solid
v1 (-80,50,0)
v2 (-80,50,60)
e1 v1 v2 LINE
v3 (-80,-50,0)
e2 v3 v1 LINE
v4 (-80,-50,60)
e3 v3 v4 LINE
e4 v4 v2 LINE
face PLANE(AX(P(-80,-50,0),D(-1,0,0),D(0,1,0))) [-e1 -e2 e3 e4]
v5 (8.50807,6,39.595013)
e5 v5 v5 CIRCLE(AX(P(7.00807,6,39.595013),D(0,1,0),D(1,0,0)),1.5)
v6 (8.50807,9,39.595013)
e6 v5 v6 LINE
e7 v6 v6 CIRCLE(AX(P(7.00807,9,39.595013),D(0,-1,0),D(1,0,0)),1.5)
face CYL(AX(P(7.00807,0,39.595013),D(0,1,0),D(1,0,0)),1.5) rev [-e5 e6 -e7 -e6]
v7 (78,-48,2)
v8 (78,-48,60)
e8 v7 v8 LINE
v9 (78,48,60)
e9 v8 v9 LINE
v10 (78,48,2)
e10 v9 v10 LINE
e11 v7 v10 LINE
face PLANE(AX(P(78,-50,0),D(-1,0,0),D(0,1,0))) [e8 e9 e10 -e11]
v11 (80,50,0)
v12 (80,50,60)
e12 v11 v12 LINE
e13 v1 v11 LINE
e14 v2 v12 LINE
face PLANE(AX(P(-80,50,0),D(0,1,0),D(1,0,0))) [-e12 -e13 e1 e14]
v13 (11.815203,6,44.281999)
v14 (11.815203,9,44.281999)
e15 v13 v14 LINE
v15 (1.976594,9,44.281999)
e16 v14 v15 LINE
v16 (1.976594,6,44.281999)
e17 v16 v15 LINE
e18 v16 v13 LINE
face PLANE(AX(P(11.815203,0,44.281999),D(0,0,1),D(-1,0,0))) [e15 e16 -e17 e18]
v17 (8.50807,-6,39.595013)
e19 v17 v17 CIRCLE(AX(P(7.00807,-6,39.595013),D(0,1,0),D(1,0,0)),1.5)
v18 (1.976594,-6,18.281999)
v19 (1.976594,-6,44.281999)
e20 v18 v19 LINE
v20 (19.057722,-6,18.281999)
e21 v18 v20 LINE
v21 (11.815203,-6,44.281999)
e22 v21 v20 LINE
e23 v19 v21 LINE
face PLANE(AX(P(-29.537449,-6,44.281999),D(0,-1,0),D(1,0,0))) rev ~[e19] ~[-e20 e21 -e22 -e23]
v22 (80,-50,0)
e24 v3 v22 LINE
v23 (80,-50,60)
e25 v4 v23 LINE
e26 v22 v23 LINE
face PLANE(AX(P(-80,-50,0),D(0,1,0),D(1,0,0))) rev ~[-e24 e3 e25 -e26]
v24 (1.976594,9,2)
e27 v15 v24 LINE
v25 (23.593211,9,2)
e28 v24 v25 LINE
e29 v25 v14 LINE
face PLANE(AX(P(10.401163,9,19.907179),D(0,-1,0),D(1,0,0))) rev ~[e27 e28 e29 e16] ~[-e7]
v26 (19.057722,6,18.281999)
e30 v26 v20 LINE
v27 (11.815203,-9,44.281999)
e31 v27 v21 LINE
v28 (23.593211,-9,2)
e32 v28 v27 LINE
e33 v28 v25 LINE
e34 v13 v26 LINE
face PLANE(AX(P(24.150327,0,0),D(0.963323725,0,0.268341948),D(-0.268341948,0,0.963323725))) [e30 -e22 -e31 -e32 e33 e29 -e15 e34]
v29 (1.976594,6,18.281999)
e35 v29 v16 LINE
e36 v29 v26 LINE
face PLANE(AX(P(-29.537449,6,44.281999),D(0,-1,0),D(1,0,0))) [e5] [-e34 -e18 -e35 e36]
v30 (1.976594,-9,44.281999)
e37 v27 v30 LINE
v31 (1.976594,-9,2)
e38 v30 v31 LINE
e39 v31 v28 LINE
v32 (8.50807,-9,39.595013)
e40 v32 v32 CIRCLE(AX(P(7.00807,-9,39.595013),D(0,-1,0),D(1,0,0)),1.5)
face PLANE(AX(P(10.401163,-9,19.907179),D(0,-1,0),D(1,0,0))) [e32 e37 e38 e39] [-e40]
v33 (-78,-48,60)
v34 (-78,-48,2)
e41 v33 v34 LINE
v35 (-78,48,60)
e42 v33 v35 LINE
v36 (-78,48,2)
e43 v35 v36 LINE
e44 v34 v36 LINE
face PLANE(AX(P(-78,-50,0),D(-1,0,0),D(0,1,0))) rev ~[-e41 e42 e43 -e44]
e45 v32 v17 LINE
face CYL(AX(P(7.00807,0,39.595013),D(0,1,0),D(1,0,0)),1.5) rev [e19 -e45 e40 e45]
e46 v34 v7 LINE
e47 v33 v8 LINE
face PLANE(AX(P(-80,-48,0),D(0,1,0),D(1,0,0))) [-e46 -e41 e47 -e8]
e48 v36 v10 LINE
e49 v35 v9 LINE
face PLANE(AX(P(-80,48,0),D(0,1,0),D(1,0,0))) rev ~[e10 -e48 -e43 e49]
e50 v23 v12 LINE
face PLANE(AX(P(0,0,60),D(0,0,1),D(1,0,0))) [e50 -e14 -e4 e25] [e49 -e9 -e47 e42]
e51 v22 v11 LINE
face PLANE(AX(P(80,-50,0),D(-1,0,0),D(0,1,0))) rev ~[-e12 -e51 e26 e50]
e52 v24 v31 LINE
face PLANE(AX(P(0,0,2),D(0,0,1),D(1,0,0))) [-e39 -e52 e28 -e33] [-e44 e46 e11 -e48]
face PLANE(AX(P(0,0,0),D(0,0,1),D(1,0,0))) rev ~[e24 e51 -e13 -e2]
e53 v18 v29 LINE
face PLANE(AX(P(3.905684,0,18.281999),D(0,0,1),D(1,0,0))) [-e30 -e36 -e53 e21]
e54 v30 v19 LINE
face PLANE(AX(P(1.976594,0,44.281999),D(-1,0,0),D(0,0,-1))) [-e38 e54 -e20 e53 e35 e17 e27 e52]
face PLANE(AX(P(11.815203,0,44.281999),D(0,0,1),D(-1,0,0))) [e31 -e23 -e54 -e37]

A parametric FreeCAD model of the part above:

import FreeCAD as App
import Part
import Sketcher
Q = App.Units.Quantity


def faces_at(feature, points):
    """Names of the faces that lie closest to the given points."""
    faces = feature.Shape.Faces
    near = lambda p: min(range(len(faces)), key=lambda i: faces[i].distToShape(Part.Vertex(*p))[0])
    return sorted({f"Face{near(p) + 1}" for p in points})

doc = App.newDocument("Part")
body = doc.addObject("PartDesign::Body", "Body")

# Sketch on XY plane
sketch1 = body.newObject("Sketcher::SketchObject", "Sketch")
sketch1.AttachmentSupport = (doc.getObject("XY_Plane"), [""])
sketch1.MapMode = "FlatFace"
sketch1.addGeometry(Part.LineSegment(App.Vector(-80, 50, 0), App.Vector(-80, -50, 0)), False)
sketch1.addGeometry(Part.LineSegment(App.Vector(-80, -50, 0), App.Vector(80, -50, 0)), False)
sketch1.addGeometry(Part.LineSegment(App.Vector(80, -50, 0), App.Vector(80, 50, 0)), False)
sketch1.addGeometry(Part.LineSegment(App.Vector(80, 50, 0), App.Vector(-80, 50, 0)), False)
sketch1.addConstraint(Sketcher.Constraint("Coincident", 0, 2, 1, 1))
sketch1.addConstraint(Sketcher.Constraint("Coincident", 1, 2, 2, 1))
sketch1.addConstraint(Sketcher.Constraint("Coincident", 2, 2, 3, 1))
sketch1.addConstraint(Sketcher.Constraint("Coincident", 3, 2, 0, 1))
sketch1.addConstraint(Sketcher.Constraint("Vertical", 0))
sketch1.addConstraint(Sketcher.Constraint("Horizontal", 1))
sketch1.addConstraint(Sketcher.Constraint("Vertical", 2))
sketch1.addConstraint(Sketcher.Constraint("Horizontal", 3))
sketch1.addConstraint(Sketcher.Constraint("Symmetric", 0, 2, 2, 2, -1, 1))
sketch1.addConstraint(Sketcher.Constraint("DistanceX", 1, 1, 1, 2, Q("160 mm")))
sketch1.addConstraint(Sketcher.Constraint("DistanceY", 0, 2, 0, 1, Q("100 mm")))
pad1 = body.newObject("PartDesign::Pad", "Pad")
pad1.Profile = sketch1
pad1.Length = 60
doc.recompute()

thickness = body.newObject("PartDesign::Thickness", "Thickness")
thickness.Base = (pad1, faces_at(pad1, [(0, 0, 60)]))
thickness.Value = 2
thickness.Reversed = True
thickness.Join = "Arc"

# Sketch on XZ plane
sketch2 = body.newObject("Sketcher::SketchObject", "Sketch001")
sketch2.AttachmentSupport = (doc.getObject("XZ_Plane"), [""])
sketch2.MapMode = "FlatFace"
sketch2.addGeometry(Part.LineSegment(App.Vector(1.976594, 44.281999, 0), App.Vector(1.976594, 0, 0)), False)
sketch2.addGeometry(Part.LineSegment(App.Vector(1.976594, 0, 0), App.Vector(24.150327, 0, 0)), False)
sketch2.addGeometry(Part.LineSegment(App.Vector(24.150327, 0, 0), App.Vector(11.815203, 44.281999, 0)), False)
sketch2.addGeometry(Part.LineSegment(App.Vector(11.815203, 44.281999, 0), App.Vector(1.976594, 44.281999, 0)), False)
sketch2.addGeometry(Part.Circle(App.Vector(7.00807, 39.595013, 0), App.Vector(0, 0, 1), 1.5), False)
sketch2.addConstraint(Sketcher.Constraint("Coincident", 0, 2, 1, 1))
sketch2.addConstraint(Sketcher.Constraint("Coincident", 1, 2, 2, 1))
sketch2.addConstraint(Sketcher.Constraint("Coincident", 2, 2, 3, 1))
sketch2.addConstraint(Sketcher.Constraint("Coincident", 3, 2, 0, 1))
sketch2.addConstraint(Sketcher.Constraint("Vertical", 0))
sketch2.addConstraint(Sketcher.Constraint("Horizontal", 1))
sketch2.addConstraint(Sketcher.Constraint("Horizontal", 3))
sketch2.addConstraint(Sketcher.Constraint("PointOnObject", 0, 2, -1))
sketch2.addConstraint(Sketcher.Constraint("Diameter", 4, Q("3 mm")))
sketch2.addConstraint(Sketcher.Constraint("DistanceY", 0, 2, 0, 1, Q("44.281999 mm")))
sketch2.addConstraint(Sketcher.Constraint("DistanceX", 3, 2, 3, 1, Q("9.838609 mm")))
sketch2.addConstraint(Sketcher.Constraint("Distance", 2, Q("45.967932 mm")))
sketch2.addConstraint(Sketcher.Constraint("DistanceX", -1, 1, 4, 3, Q("7.00807 mm")))
sketch2.addConstraint(Sketcher.Constraint("DistanceY", -1, 1, 4, 3, Q("39.595013 mm")))
sketch2.addConstraint(Sketcher.Constraint("DistanceX", -1, 1, 0, 2, Q("1.976594 mm")))
pad2 = body.newObject("PartDesign::Pad", "Pad001")
pad2.Profile = sketch2
pad2.Length = 18
pad2.Midplane = True

# Sketch on XY plane
sketch3 = body.newObject("Sketcher::SketchObject", "Sketch002")
sketch3.AttachmentSupport = (doc.getObject("XY_Plane"), [""])
sketch3.MapMode = "FlatFace"
sketch3.AttachmentOffset = App.Placement(App.Vector(0, 0, 44.281999), App.Rotation())
sketch3.addGeometry(Part.LineSegment(App.Vector(-29.537449, 6, 0), App.Vector(-29.537449, -6, 0)), False)
sketch3.addGeometry(Part.LineSegment(App.Vector(-29.537449, -6, 0), App.Vector(37.348816, -6, 0)), False)
sketch3.addGeometry(Part.LineSegment(App.Vector(37.348816, -6, 0), App.Vector(37.348816, 6, 0)), False)
sketch3.addGeometry(Part.LineSegment(App.Vector(37.348816, 6, 0), App.Vector(-29.537449, 6, 0)), False)
sketch3.addConstraint(Sketcher.Constraint("Coincident", 0, 2, 1, 1))
sketch3.addConstraint(Sketcher.Constraint("Coincident", 1, 2, 2, 1))
sketch3.addConstraint(Sketcher.Constraint("Coincident", 2, 2, 3, 1))
sketch3.addConstraint(Sketcher.Constraint("Coincident", 3, 2, 0, 1))
sketch3.addConstraint(Sketcher.Constraint("Vertical", 0))
sketch3.addConstraint(Sketcher.Constraint("Horizontal", 1))
sketch3.addConstraint(Sketcher.Constraint("Vertical", 2))
sketch3.addConstraint(Sketcher.Constraint("Horizontal", 3))
sketch3.addConstraint(Sketcher.Constraint("DistanceY", 0, 2, 0, 1, Q("12 mm")))
sketch3.addConstraint(Sketcher.Constraint("DistanceY", 0, 2, -1, 1, Q("6 mm")))
sketch3.addConstraint(Sketcher.Constraint("DistanceX", 1, 1, 1, 2, Q("66.886265 mm")))
sketch3.addConstraint(Sketcher.Constraint("DistanceX", 0, 2, -1, 1, Q("29.537449 mm")))
pocket1 = body.newObject("PartDesign::Pocket", "Pocket")
pocket1.Profile = sketch3
pocket1.Length = 26

doc.recompute()
